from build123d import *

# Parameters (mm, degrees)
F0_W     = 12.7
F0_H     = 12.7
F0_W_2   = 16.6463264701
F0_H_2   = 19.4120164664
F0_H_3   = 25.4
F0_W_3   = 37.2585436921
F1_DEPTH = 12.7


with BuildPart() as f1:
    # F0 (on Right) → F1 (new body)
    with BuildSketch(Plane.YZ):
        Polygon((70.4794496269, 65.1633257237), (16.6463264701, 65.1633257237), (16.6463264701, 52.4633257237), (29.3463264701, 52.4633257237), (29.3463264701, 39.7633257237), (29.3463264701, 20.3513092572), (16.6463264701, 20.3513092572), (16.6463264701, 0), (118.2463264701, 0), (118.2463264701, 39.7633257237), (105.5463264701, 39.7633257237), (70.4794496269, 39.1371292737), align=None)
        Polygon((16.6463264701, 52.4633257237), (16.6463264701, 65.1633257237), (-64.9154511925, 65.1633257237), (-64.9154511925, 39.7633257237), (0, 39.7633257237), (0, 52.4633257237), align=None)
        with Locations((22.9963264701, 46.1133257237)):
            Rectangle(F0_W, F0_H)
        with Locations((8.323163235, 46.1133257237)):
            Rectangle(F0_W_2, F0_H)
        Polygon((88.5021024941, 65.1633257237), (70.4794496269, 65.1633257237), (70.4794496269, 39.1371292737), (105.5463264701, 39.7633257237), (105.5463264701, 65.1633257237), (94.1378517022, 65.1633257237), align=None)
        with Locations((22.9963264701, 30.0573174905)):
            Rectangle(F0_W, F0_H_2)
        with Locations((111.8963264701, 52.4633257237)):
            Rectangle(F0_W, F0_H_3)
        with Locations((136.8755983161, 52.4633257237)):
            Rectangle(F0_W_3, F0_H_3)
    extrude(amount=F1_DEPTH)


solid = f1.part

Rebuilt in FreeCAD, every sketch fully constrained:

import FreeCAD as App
import Part
import Sketcher
from FreeCAD import Vector
Q = App.Units.Quantity


def add_polygon(sketch, points):
    """Adds a closed chain of lines whose ends are joined by coincident constraints."""
    first, n = sketch.GeometryCount, len(points)
    for a, b in zip(points, points[1:] + points[:1]):
        sketch.addGeometry(Part.LineSegment(App.Vector(*a, 0), App.Vector(*b, 0)), False)
    for i in range(n):
        sketch.addConstraint(Sketcher.Constraint("Coincident", first + i, 2, first + (i + 1) % n, 1))

doc = App.newDocument("Part")
body = doc.addObject("PartDesign::Body", "Body")

# Sketch on YZ plane
sketch1 = body.newObject("Sketcher::SketchObject", "Sketch")
sketch1.AttachmentSupport = (doc.getObject("YZ_Plane"), [""])
sketch1.MapMode = "FlatFace"
add_polygon(sketch1, [(-65, 65), (-65, 40), (17, 40), (17, 0), (118, 0), (118, 40), (156, 40), (156, 65)])  # lines 0-7
sketch1.addConstraint(Sketcher.Constraint("Vertical", 0))
sketch1.addConstraint(Sketcher.Constraint("Horizontal", 1))
sketch1.addConstraint(Sketcher.Constraint("Vertical", 2))
sketch1.addConstraint(Sketcher.Constraint("Horizontal", 3))
sketch1.addConstraint(Sketcher.Constraint("Vertical", 4))
sketch1.addConstraint(Sketcher.Constraint("Horizontal", 5))
sketch1.addConstraint(Sketcher.Constraint("Vertical", 6))
sketch1.addConstraint(Sketcher.Constraint("Horizontal", 7))
sketch1.addConstraint(Sketcher.Constraint("PointOnObject", 2, 2, -1))
sketch1.addConstraint(Sketcher.Constraint("Horizontal", 1, 2, 4, 2))
sketch1.addConstraint(Sketcher.Constraint("DistanceX", 3, 1, 3, 2, Q("4 in")))
sketch1.addConstraint(Sketcher.Constraint("DistanceY", 0, 2, 0, 1, Q("1 in")))
sketch1.addConstraint(Sketcher.Constraint("DistanceX", 7, 2, 7, 1, 220.420321))
sketch1.addConstraint(Sketcher.Constraint("DistanceX", 1, 1, 1, 2, 81.561778))
sketch1.addConstraint(Sketcher.Constraint("DistanceY", 2, 2, 2, 1, 39.763326))
sketch1.addConstraint(Sketcher.Constraint("DistanceX", 0, 2, -1, 1, 64.915451))
pad1 = body.newObject("PartDesign::Pad", "Pad")
pad1.Profile = sketch1
pad1.Length = Q("0.5 in")

doc.recompute()
